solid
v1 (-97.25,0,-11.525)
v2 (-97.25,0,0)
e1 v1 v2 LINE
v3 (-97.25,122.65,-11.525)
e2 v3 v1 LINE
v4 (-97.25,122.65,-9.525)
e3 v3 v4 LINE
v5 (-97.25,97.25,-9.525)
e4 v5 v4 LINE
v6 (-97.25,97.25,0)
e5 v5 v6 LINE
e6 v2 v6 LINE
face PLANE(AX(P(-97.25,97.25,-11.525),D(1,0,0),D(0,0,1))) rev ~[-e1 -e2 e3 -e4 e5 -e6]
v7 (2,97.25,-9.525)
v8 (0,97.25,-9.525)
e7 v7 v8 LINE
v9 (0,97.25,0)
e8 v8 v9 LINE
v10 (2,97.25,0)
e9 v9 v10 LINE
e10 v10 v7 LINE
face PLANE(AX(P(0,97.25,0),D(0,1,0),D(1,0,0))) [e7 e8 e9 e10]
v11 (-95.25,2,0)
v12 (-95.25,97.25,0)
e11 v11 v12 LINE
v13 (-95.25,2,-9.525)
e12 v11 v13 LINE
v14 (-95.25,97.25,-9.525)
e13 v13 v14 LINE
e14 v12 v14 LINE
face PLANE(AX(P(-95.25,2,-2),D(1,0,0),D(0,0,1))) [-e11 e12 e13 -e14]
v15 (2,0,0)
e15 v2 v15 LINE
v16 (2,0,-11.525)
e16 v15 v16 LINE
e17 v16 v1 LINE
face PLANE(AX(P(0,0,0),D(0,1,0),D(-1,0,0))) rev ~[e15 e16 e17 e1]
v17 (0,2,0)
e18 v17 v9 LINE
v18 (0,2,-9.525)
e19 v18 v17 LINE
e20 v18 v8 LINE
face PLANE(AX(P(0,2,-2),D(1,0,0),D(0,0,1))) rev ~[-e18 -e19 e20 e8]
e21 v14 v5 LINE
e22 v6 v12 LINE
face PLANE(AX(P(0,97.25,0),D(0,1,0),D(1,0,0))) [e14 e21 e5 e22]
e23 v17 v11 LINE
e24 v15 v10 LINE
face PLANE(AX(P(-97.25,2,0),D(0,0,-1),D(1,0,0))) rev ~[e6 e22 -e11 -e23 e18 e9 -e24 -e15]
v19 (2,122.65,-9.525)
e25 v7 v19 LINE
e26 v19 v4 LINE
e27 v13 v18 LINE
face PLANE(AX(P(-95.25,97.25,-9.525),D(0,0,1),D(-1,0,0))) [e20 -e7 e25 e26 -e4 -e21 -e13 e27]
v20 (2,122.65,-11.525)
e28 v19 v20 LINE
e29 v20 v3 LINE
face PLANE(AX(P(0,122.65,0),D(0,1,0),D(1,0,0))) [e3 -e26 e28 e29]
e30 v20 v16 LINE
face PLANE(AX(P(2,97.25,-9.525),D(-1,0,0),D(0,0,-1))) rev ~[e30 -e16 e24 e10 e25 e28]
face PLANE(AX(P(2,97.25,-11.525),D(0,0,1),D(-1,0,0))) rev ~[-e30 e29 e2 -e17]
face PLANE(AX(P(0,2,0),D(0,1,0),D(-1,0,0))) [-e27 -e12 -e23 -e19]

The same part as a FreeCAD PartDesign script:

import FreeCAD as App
import Part
import Sketcher

V = App.Vector
Q = App.Units.Quantity


def add_polygon(sketch, points):
    """Adds a closed chain of lines whose ends are joined by coincident constraints."""
    first, n = sketch.GeometryCount, len(points)
    for a, b in zip(points, points[1:] + points[:1]):
        sketch.addGeometry(Part.LineSegment(App.Vector(*a, 0), App.Vector(*b, 0)), False)
    for i in range(n):
        sketch.addConstraint(Sketcher.Constraint("Coincident", first + i, 2, first + (i + 1) % n, 1))

doc = App.newDocument("Part")
body = doc.addObject("PartDesign::Body", "Body")

# Sketch on XZ plane
sketch1 = doc.addObject("Sketcher::SketchObject", "Sketch")
body.addObject(sketch1)
sketch1.AttachmentSupport = (doc.XZ_Plane, [""])
sketch1.MapMode = "FlatFace"
add_polygon(sketch1, [(2, 0), (2, -11.525), (-97.25, -11.525), (-97.25, 0)])  # lines 0-3
sketch1.addConstraint([
    Sketcher.Constraint("Vertical", 0),
    Sketcher.Constraint("Horizontal", 1),
    Sketcher.Constraint("Vertical", 2),
    Sketcher.Constraint("Horizontal", 3),
    Sketcher.Constraint("PointOnObject", 2, 2, -1),
    Sketcher.Constraint("DistanceX", -1, 1, 0, 2, 2.0),
    Sketcher.Constraint("DistanceX", 1, 2, 1, 1, 99.25),
    Sketcher.Constraint("DistanceY", 0, 2, 0, 1, 11.525),
])
pad1 = doc.addObject("PartDesign::Pad", "Pad")
body.addObject(pad1)
pad1.Profile = sketch1
pad1.Length = 2
pad1.Reversed = True

# Sketch on XZ plane
sketch2 = doc.addObject("Sketcher::SketchObject", "Sketch001")
body.addObject(sketch2)
sketch2.AttachmentSupport = (doc.XZ_Plane, [""])
sketch2.MapMode = "FlatFace"
sketch2.AttachmentOffset = App.Placement(V(0, 0, -2), App.Rotation())
add_polygon(sketch2, [(-97.25, -11.525), (-97.25, 0), (-95.25, 0), (-95.25, -9.525), (0, -9.525), (0, 0), (2, 0), (2, -11.525)])  # lines 0-7
sketch2.addConstraint([
    Sketcher.Constraint("Vertical", 0),
    Sketcher.Constraint("Horizontal", 1),
    Sketcher.Constraint("Vertical", 2),
    Sketcher.Constraint("Horizontal", 3),
    Sketcher.Constraint("Vertical", 4),
    Sketcher.Constraint("Horizontal", 5),
    Sketcher.Constraint("Vertical", 6),
    Sketcher.Constraint("Horizontal", 7),
    Sketcher.Constraint("Coincident", 4, 2, -1, 1),
    Sketcher.Constraint("PointOnObject", 0, 2, -1),
    Sketcher.Constraint("Equal", 1, 5),
    Sketcher.Constraint("DistanceX", 1, 1, 1, 2, 2.0),
    Sketcher.Constraint("DistanceX", 3, 1, 3, 2, Q("3.75 in")),
    Sketcher.Constraint("DistanceY", 2, 2, 2, 1, Q("0.375 in")),
    Sketcher.Constraint("DistanceY", 6, 2, 3, 2, 2.0),
])
pad2 = doc.addObject("PartDesign::Pad", "Pad001")
body.addObject(pad2)
pad2.Profile = sketch2
pad2.Length = Q("3.75 in")
pad2.Reversed = True

# Sketch on XZ plane
sketch3 = doc.addObject("Sketcher::SketchObject", "Sketch002")
body.addObject(sketch3)
sketch3.AttachmentSupport = (doc.XZ_Plane, [""])
sketch3.MapMode = "FlatFace"
sketch3.AttachmentOffset = App.Placement(V(0, 0, -97.25), App.Rotation())
add_polygon(sketch3, [(-97.25, -11.525), (-97.25, -9.525), (2, -9.525), (2, -11.525)])  # lines 0-3
sketch3.addConstraint([
    Sketcher.Constraint("Vertical", 0),
    Sketcher.Constraint("Horizontal", 1),
    Sketcher.Constraint("Vertical", 2),
    Sketcher.Constraint("Horizontal", 3),
    Sketcher.Constraint("DistanceX", 1, 1, 1, 2, 99.25),
    Sketcher.Constraint("DistanceY", 0, 2, -1, 1, Q("0.375 in")),
    Sketcher.Constraint("DistanceY", 0, 1, 0, 2, 2.0),
    Sketcher.Constraint("DistanceX", 0, 2, -1, 1, 97.25),
])
pad3 = doc.addObject("PartDesign::Pad", "Pad002")
body.addObject(pad3)
pad3.Profile = sketch3
pad3.Length = Q("1 in")
pad3.Reversed = True

doc.recompute()
